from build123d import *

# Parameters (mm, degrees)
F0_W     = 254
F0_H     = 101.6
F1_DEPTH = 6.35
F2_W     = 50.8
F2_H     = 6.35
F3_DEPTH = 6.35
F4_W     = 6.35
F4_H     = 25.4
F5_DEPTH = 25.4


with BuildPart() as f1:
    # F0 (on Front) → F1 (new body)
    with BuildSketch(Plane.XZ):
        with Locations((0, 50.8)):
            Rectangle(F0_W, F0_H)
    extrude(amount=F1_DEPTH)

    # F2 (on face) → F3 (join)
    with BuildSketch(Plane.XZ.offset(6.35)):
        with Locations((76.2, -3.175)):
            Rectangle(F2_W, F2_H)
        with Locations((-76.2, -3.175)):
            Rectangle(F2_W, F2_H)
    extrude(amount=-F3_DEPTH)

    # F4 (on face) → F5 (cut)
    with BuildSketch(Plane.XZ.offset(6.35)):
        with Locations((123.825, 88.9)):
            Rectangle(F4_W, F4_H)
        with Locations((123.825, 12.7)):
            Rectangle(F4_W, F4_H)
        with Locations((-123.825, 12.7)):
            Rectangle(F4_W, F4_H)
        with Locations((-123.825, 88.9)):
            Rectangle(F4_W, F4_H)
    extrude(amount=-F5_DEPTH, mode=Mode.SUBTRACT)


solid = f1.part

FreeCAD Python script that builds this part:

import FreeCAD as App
import Part
import Sketcher
Q = App.Units.Quantity

doc = App.newDocument("Part")
params = doc.addObject("Spreadsheet::Sheet", "Params")
for row, (alias, value) in enumerate([
    ("sketch1_width", "10 in"),
    ("sketch1_height", "4 in"),
    ("pad1_length", "0.25 in"),
    ("sketch2_width", "2 in"),
    ("sketch2_height", "0.25 in"),
    ("pad2_length", "0.25 in"),
    ("sketch3_height", "1 in"),
    ("sketch3_width", "0.25 in"),
    ("pocket1_length", "1 in"),
], start=1):
    params.set(f"A{row}", alias)
    params.set(f"B{row}", "=" + value)
    params.setAlias(f"B{row}", alias)

body = doc.addObject("PartDesign::Body", "Body")

# Sketch on XZ plane
sketch1 = body.newObject("Sketcher::SketchObject", "Sketch")
sketch1.AttachmentSupport = (doc.getObject("XZ_Plane"), [""])
sketch1.MapMode = "FlatFace"
sketch1.addGeometry([
    Part.LineSegment(App.Vector(-127, 102, 0), App.Vector(-127, 0, 0)),
    Part.LineSegment(App.Vector(-127, 0, 0), App.Vector(127, 0, 0)),
    Part.LineSegment(App.Vector(127, 0, 0), App.Vector(127, 102, 0)),
    Part.LineSegment(App.Vector(127, 102, 0), App.Vector(-127, 102, 0)),
], False)
sketch1.addConstraint([
    Sketcher.Constraint("Coincident", 0, 2, 1, 1),
    Sketcher.Constraint("Coincident", 1, 2, 2, 1),
    Sketcher.Constraint("Coincident", 2, 2, 3, 1),
    Sketcher.Constraint("Coincident", 3, 2, 0, 1),
    Sketcher.Constraint("Vertical", 0),
    Sketcher.Constraint("Horizontal", 1),
    Sketcher.Constraint("Vertical", 2),
    Sketcher.Constraint("Horizontal", 3),
    Sketcher.Constraint("Symmetric", 0, 2, 1, 2, -1, 1),
    Sketcher.Constraint("DistanceX", 1, 1, 1, 2, Q("10 in")),
    Sketcher.Constraint("DistanceY", 0, 2, 0, 1, Q("4 in")),
])
sketch1.setExpression("Constraints[9]", "Params.sketch1_width")
sketch1.setExpression("Constraints[10]", "Params.sketch1_height")
pad1 = body.newObject("PartDesign::Pad", "Pad")
pad1.Profile = sketch1
pad1.setExpression("Length", "Params.pad1_length")

# Sketch on XZ plane
sketch2 = body.newObject("Sketcher::SketchObject", "Sketch001")
sketch2.AttachmentSupport = (doc.getObject("XZ_Plane"), [""])
sketch2.MapMode = "FlatFace"
sketch2.AttachmentOffset = App.Placement(App.Vector(0, 0, 0.25 * 25.4), App.Rotation())
sketch2.addGeometry([
    Part.LineSegment(App.Vector(51, 0, 0), App.Vector(51, -6, 0)),  # 0
    Part.LineSegment(App.Vector(51, -6, 0), App.Vector(102, -6, 0)),  # 1
    Part.LineSegment(App.Vector(102, -6, 0), App.Vector(102, 0, 0)),  # 2
    Part.LineSegment(App.Vector(102, 0, 0), App.Vector(51, 0, 0)),  # 3
    Part.LineSegment(App.Vector(-102, 0, 0), App.Vector(-102, -6, 0)),  # 4
    Part.LineSegment(App.Vector(-102, -6, 0), App.Vector(-51, -6, 0)),  # 5
    Part.LineSegment(App.Vector(-51, -6, 0), App.Vector(-51, 0, 0)),  # 6
    Part.LineSegment(App.Vector(-51, 0, 0), App.Vector(-102, 0, 0)),  # 7
], False)
sketch2.addConstraint([
    Sketcher.Constraint("Coincident", 0, 2, 1, 1),
    Sketcher.Constraint("Coincident", 1, 2, 2, 1),
    Sketcher.Constraint("Coincident", 2, 2, 3, 1),
    Sketcher.Constraint("Coincident", 3, 2, 0, 1),
    Sketcher.Constraint("Coincident", 4, 2, 5, 1),
    Sketcher.Constraint("Coincident", 5, 2, 6, 1),
    Sketcher.Constraint("Coincident", 6, 2, 7, 1),
    Sketcher.Constraint("Coincident", 7, 2, 4, 1),
    Sketcher.Constraint("Vertical", 0),
    Sketcher.Constraint("Horizontal", 1),
    Sketcher.Constraint("Vertical", 2),
    Sketcher.Constraint("Horizontal", 3),
    Sketcher.Constraint("Vertical", 4),
    Sketcher.Constraint("Horizontal", 5),
    Sketcher.Constraint("Vertical", 6),
    Sketcher.Constraint("Horizontal", 7),
    Sketcher.Constraint("Symmetric", 3, 2, 6, 2, -1, 1),
    Sketcher.Constraint("Symmetric", 1, 2, 4, 2, -2),
    Sketcher.Constraint("PointOnObject", 2, 2, -1),
    Sketcher.Constraint("DistanceX", 1, 1, 1, 2, Q("2 in")),
    Sketcher.Constraint("DistanceX", -1, 1, 0, 2, Q("2 in")),
    Sketcher.Constraint("DistanceY", 0, 2, 0, 1, Q("0.25 in")),
])
sketch2.setExpression("Constraints[19]", "Params.sketch2_width")
sketch2.setExpression("Constraints[21]", "Params.sketch2_height")
pad2 = body.newObject("PartDesign::Pad", "Pad001")
pad2.Profile = sketch2
pad2.setExpression("Length", "Params.pad2_length")
pad2.Reversed = True

# Sketch on XZ plane
sketch3 = body.newObject("Sketcher::SketchObject", "Sketch002")
sketch3.AttachmentSupport = (doc.getObject("XZ_Plane"), [""])
sketch3.MapMode = "FlatFace"
sketch3.AttachmentOffset = App.Placement(App.Vector(0, 0, 0.25 * 25.4), App.Rotation())
sketch3.addGeometry([
    Part.LineSegment(App.Vector(121, 102, 0), App.Vector(121, 76, 0)),  # 0
    Part.LineSegment(App.Vector(121, 76, 0), App.Vector(127, 76, 0)),  # 1
    Part.LineSegment(App.Vector(127, 76, 0), App.Vector(127, 102, 0)),  # 2
    Part.LineSegment(App.Vector(127, 102, 0), App.Vector(121, 102, 0)),  # 3
    Part.LineSegment(App.Vector(121, 25, 0), App.Vector(121, 0, 0)),  # 4
    Part.LineSegment(App.Vector(121, 0, 0), App.Vector(127, 0, 0)),  # 5
    Part.LineSegment(App.Vector(127, 0, 0), App.Vector(127, 25, 0)),  # 6
    Part.LineSegment(App.Vector(127, 25, 0), App.Vector(121, 25, 0)),  # 7
    Part.LineSegment(App.Vector(-127, 25, 0), App.Vector(-127, 0, 0)),  # 8
    Part.LineSegment(App.Vector(-127, 0, 0), App.Vector(-121, 0, 0)),  # 9
    Part.LineSegment(App.Vector(-121, 0, 0), App.Vector(-121, 25, 0)),  # 10
    Part.LineSegment(App.Vector(-121, 25, 0), App.Vector(-127, 25, 0)),  # 11
    Part.LineSegment(App.Vector(-127, 102, 0), App.Vector(-127, 76, 0)),  # 12
    Part.LineSegment(App.Vector(-127, 76, 0), App.Vector(-121, 76, 0)),  # 13
    Part.LineSegment(App.Vector(-121, 76, 0), App.Vector(-121, 102, 0)),  # 14
    Part.LineSegment(App.Vector(-121, 102, 0), App.Vector(-127, 102, 0)),  # 15
], False)
sketch3.addConstraint([
    Sketcher.Constraint("Coincident", 0, 2, 1, 1),
    Sketcher.Constraint("Coincident", 1, 2, 2, 1),
    Sketcher.Constraint("Coincident", 2, 2, 3, 1),
    Sketcher.Constraint("Coincident", 3, 2, 0, 1),
    Sketcher.Constraint("Coincident", 4, 2, 5, 1),
    Sketcher.Constraint("Coincident", 5, 2, 6, 1),
    Sketcher.Constraint("Coincident", 6, 2, 7, 1),
    Sketcher.Constraint("Coincident", 7, 2, 4, 1),
    Sketcher.Constraint("Coincident", 8, 2, 9, 1),
    Sketcher.Constraint("Coincident", 9, 2, 10, 1),
    Sketcher.Constraint("Coincident", 10, 2, 11, 1),
    Sketcher.Constraint("Coincident", 11, 2, 8, 1),
    Sketcher.Constraint("Coincident", 12, 2, 13, 1),
    Sketcher.Constraint("Coincident", 13, 2, 14, 1),
    Sketcher.Constraint("Coincident", 14, 2, 15, 1),
    Sketcher.Constraint("Coincident", 15, 2, 12, 1),
    Sketcher.Constraint("Vertical", 0),
    Sketcher.Constraint("Horizontal", 1),
    Sketcher.Constraint("Vertical", 2),
    Sketcher.Constraint("Horizontal", 3),
    Sketcher.Constraint("Vertical", 4),
    Sketcher.Constraint("Horizontal", 5),
    Sketcher.Constraint("Vertical", 6),
    Sketcher.Constraint("Horizontal", 7),
    Sketcher.Constraint("Vertical", 8),
    Sketcher.Constraint("Horizontal", 9),
    Sketcher.Constraint("Vertical", 10),
    Sketcher.Constraint("Horizontal", 11),
    Sketcher.Constraint("Vertical", 12),
    Sketcher.Constraint("Horizontal", 13),
    Sketcher.Constraint("Vertical", 14),
    Sketcher.Constraint("Horizontal", 15),
    Sketcher.Constraint("Symmetric", 5, 2, 8, 2, -1, 1),
    Sketcher.Constraint("Symmetric", 4, 2, 9, 2, -2),
    Sketcher.Constraint("Symmetric", 1, 2, 12, 2, -2),
    Sketcher.Constraint("Symmetric", 3, 2, 14, 2, -2),
    Sketcher.Constraint("Horizontal", 7, 2, 10, 2),
    Sketcher.Constraint("Vertical", 3, 2, 4, 2),
    Sketcher.Constraint("Vertical", 2, 2, 5, 2),
    Sketcher.Constraint("Equal", 2, 4),
    Sketcher.Constraint("DistanceY", 0, 2, 0, 1, Q("1 in")),
    Sketcher.Constraint("DistanceY", -1, 1, 0, 2, Q("3 in")),
    Sketcher.Constraint("DistanceX", -1, 1, 1, 2, Q("5 in")),
    Sketcher.Constraint("DistanceX", 1, 1, 1, 2, Q("0.25 in")),
])
sketch3.setExpression("Constraints[40]", "Params.sketch3_height")
sketch3.setExpression("Constraints[43]", "Params.sketch3_width")
pocket1 = body.newObject("PartDesign::Pocket", "Pocket")
pocket1.Profile = sketch3
pocket1.setExpression("Length", "Params.pocket1_length")

doc.recompute()
